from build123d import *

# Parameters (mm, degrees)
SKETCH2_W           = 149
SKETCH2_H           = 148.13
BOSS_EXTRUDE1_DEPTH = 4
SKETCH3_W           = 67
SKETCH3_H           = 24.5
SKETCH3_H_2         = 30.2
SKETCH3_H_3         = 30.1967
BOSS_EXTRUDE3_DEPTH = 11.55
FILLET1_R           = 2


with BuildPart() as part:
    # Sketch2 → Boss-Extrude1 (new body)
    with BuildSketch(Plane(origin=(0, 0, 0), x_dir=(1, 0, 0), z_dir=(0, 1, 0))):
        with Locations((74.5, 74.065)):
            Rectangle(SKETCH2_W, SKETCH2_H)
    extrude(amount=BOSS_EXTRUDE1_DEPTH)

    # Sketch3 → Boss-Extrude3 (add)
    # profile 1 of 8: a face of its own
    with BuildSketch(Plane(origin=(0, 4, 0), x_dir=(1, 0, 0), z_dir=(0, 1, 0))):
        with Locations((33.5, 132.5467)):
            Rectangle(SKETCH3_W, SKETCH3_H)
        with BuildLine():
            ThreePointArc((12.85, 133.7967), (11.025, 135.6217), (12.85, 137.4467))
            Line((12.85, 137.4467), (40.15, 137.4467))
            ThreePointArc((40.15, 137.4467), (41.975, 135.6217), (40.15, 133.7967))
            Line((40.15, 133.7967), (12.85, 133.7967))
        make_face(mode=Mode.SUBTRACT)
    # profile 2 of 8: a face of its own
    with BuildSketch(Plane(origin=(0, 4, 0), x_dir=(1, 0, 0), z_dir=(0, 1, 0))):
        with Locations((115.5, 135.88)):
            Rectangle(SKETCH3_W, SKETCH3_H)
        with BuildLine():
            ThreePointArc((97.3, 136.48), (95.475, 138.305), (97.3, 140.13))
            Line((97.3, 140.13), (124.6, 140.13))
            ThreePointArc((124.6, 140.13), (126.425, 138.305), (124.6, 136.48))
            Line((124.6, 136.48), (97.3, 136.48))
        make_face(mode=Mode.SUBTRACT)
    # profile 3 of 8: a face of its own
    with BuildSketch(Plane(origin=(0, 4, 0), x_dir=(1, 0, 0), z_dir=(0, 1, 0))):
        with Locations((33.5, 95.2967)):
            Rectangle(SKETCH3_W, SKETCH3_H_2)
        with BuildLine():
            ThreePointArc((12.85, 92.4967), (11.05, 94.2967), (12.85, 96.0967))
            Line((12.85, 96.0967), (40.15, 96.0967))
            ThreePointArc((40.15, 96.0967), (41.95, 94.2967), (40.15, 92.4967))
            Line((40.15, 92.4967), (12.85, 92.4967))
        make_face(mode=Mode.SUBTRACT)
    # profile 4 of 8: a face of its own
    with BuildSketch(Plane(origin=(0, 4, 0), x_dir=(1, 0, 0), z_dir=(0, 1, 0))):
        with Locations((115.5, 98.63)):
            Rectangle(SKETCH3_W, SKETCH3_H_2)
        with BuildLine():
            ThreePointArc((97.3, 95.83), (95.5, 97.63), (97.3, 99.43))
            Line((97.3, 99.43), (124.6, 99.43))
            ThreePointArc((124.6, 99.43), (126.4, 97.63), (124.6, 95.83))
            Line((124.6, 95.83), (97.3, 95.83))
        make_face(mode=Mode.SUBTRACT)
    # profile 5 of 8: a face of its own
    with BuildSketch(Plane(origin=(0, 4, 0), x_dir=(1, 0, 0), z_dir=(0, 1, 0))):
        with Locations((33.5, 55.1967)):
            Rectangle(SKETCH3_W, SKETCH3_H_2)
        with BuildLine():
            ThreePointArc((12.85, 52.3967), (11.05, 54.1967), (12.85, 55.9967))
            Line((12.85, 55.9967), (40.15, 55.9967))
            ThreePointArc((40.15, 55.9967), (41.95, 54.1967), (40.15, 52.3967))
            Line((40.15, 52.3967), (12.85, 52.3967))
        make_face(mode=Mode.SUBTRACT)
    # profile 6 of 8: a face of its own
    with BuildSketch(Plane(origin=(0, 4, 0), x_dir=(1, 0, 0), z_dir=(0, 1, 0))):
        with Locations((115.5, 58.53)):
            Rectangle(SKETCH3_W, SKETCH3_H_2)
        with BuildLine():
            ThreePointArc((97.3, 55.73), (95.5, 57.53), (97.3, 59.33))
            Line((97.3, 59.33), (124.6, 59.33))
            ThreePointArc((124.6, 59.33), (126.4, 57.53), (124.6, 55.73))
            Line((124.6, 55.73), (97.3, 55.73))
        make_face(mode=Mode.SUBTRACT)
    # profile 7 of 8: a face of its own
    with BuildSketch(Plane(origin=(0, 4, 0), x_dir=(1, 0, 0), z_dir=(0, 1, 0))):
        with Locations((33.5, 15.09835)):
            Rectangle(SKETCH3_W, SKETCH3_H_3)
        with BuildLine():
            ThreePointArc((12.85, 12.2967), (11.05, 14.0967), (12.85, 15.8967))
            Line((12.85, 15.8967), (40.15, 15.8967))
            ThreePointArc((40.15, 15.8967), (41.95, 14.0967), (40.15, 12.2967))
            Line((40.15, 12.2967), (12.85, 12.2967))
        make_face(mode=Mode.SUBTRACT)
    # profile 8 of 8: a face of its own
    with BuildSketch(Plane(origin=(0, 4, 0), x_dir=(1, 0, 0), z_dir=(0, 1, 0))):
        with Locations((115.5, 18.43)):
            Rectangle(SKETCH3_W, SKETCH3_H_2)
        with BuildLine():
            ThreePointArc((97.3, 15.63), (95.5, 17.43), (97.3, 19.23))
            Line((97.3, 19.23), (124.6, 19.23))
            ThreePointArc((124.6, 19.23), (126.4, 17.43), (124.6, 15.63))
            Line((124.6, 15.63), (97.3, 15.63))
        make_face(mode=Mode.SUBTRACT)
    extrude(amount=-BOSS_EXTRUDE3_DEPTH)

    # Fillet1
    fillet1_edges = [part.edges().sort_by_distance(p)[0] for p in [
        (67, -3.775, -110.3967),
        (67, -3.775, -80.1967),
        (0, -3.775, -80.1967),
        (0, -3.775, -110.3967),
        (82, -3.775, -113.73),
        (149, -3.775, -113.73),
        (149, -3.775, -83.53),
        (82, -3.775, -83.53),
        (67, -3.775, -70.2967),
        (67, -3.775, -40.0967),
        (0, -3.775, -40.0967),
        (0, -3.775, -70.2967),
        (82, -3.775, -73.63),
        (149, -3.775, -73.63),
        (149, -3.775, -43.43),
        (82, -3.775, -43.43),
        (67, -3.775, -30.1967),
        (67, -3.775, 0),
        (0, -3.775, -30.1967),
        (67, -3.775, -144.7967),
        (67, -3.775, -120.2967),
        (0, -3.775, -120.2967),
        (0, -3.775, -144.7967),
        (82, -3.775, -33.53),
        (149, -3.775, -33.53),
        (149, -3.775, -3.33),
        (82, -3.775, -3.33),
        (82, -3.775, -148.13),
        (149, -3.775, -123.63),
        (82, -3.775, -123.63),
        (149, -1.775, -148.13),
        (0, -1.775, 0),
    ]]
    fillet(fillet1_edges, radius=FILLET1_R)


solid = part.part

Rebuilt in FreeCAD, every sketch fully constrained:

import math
import FreeCAD as App
import Part
import Sketcher
from FreeCAD import Vector
Q = App.Units.Quantity


def edges_at(feature, points):
    """Names of the edges that pass closest to the given points."""
    edges = feature.Shape.Edges
    near = lambda p: min(range(len(edges)), key=lambda i: edges[i].distToShape(Part.Vertex(*p))[0])
    return sorted({f"Edge{near(p) + 1}" for p in points})

doc = App.newDocument("Part")
params = doc.addObject("Spreadsheet::Sheet", "Params")
for row, (alias, value) in enumerate([
    ("sketch1_width", "149 mm"),
    ("sketch1_height", "148.13 mm"),
    ("pad1_length", "4 mm"),
    ("sketch2_radius", "1.8 mm"),
    ("sketch2_width", "67 mm"),
    ("sketch2_width2", "27.3 mm"),
    ("sketch2_height", "24.5 mm"),
    ("sketch2_height2", "30.2 mm"),
    ("pad2_length", "11.55 mm"),
    ("fillet_radius", "2 mm"),
], start=1):
    params.set(f"A{row}", alias)
    params.set(f"B{row}", "=" + value)
    params.setAlias(f"B{row}", alias)

body = doc.addObject("PartDesign::Body", "Body")

# Sketch on XZ plane
sketch1 = body.newObject("Sketcher::SketchObject", "Sketch")
sketch1.AttachmentSupport = (doc.getObject("XZ_Plane"), [""])
sketch1.MapMode = "FlatFace"
sketch1.addGeometry([
    Part.LineSegment(Vector(0, -148.13, 0), Vector(0, 0, 0)),
    Part.LineSegment(Vector(0, 0, 0), Vector(149, 0, 0)),
    Part.LineSegment(Vector(149, 0, 0), Vector(149, -148.13, 0)),
    Part.LineSegment(Vector(149, -148.13, 0), Vector(0, -148.13, 0)),
], False)
sketch1.addConstraint([
    Sketcher.Constraint("Coincident", 0, 2, 1, 1),
    Sketcher.Constraint("Coincident", 1, 2, 2, 1),
    Sketcher.Constraint("Coincident", 2, 2, 3, 1),
    Sketcher.Constraint("Coincident", 3, 2, 0, 1),
    Sketcher.Constraint("Vertical", 0),
    Sketcher.Constraint("Horizontal", 1),
    Sketcher.Constraint("Vertical", 2),
    Sketcher.Constraint("Horizontal", 3),
    Sketcher.Constraint("Coincident", 0, 2, -1, 1),
    Sketcher.Constraint("DistanceX", 1, 1, 1, 2, Q("149 mm")),
    Sketcher.Constraint("DistanceY", 0, 1, 0, 2, Q("148.13 mm")),
])
sketch1.setExpression("Constraints[9]", "Params.sketch1_width")
sketch1.setExpression("Constraints[10]", "Params.sketch1_height")
pad1 = body.newObject("PartDesign::Pad", "Pad")
pad1.Profile = sketch1
pad1.setExpression("Length", "Params.pad1_length")
pad1.Reversed = True

# Sketch on XZ plane
sketch2 = body.newObject("Sketcher::SketchObject", "Sketch001")
sketch2.AttachmentSupport = (doc.getObject("XZ_Plane"), [""])
sketch2.MapMode = "FlatFace"
sketch2.AttachmentOffset = App.Placement(Vector(0, 0, -4), App.Rotation())
sketch2.addGeometry([
    Part.LineSegment(Vector(0, -144.7967, 0), Vector(0, -120.2967, 0)),  # 0
    Part.LineSegment(Vector(0, -120.2967, 0), Vector(67, -120.2967, 0)),  # 1
    Part.LineSegment(Vector(67, -120.2967, 0), Vector(67, -144.7967, 0)),  # 2
    Part.LineSegment(Vector(67, -144.7967, 0), Vector(0, -144.7967, 0)),  # 3
    Part.LineSegment(Vector(40.15, -133.7967, 0), Vector(12.85, -133.7967, 0)),  # 4
    Part.ArcOfCircle(Part.Circle(Vector(12.85, -135.6217, 0), Vector(0, 0, 1), 1.825), math.radians(90), math.radians(270)),  # 5
    Part.LineSegment(Vector(12.85, -137.4467, 0), Vector(40.15, -137.4467, 0)),  # 6
    Part.ArcOfCircle(Part.Circle(Vector(40.15, -135.6217, 0), Vector(0, 0, 1), 1.825), math.radians(-90), math.radians(90)),  # 7
    Part.LineSegment(Vector(82, -148.13, 0), Vector(82, -123.63, 0)),  # 8
    Part.LineSegment(Vector(82, -123.63, 0), Vector(149, -123.63, 0)),  # 9
    Part.LineSegment(Vector(149, -123.63, 0), Vector(149, -148.13, 0)),  # 10
    Part.LineSegment(Vector(149, -148.13, 0), Vector(82, -148.13, 0)),  # 11
    Part.LineSegment(Vector(124.6, -136.48, 0), Vector(97.3, -136.48, 0)),  # 12
    Part.ArcOfCircle(Part.Circle(Vector(97.3, -138.305, 0), Vector(0, 0, 1), 1.825), math.radians(90), math.radians(270)),  # 13
    Part.LineSegment(Vector(97.3, -140.13, 0), Vector(124.6, -140.13, 0)),  # 14
    Part.ArcOfCircle(Part.Circle(Vector(124.6, -138.305, 0), Vector(0, 0, 1), 1.825), math.radians(-90), math.radians(90)),  # 15
    Part.LineSegment(Vector(0, -110.3967, 0), Vector(0, -80.1967, 0)),  # 16
    Part.LineSegment(Vector(0, -80.1967, 0), Vector(67, -80.1967, 0)),  # 17
    Part.LineSegment(Vector(67, -80.1967, 0), Vector(67, -110.3967, 0)),  # 18
    Part.LineSegment(Vector(67, -110.3967, 0), Vector(0, -110.3967, 0)),  # 19
    Part.LineSegment(Vector(40.15, -92.4967, 0), Vector(12.85, -92.4967, 0)),  # 20
    Part.ArcOfCircle(Part.Circle(Vector(12.85, -94.2967, 0), Vector(0, 0, 1), 1.8), math.radians(90), math.radians(270)),  # 21
    Part.LineSegment(Vector(12.85, -96.0967, 0), Vector(40.15, -96.0967, 0)),  # 22
    Part.ArcOfCircle(Part.Circle(Vector(40.15, -94.2967, 0), Vector(0, 0, 1), 1.8), math.radians(-90), math.radians(90)),  # 23
    Part.LineSegment(Vector(82, -113.73, 0), Vector(82, -83.53, 0)),  # 24
    Part.LineSegment(Vector(82, -83.53, 0), Vector(149, -83.53, 0)),  # 25
    Part.LineSegment(Vector(149, -83.53, 0), Vector(149, -113.73, 0)),  # 26
    Part.LineSegment(Vector(149, -113.73, 0), Vector(82, -113.73, 0)),  # 27
    Part.LineSegment(Vector(124.6, -95.83, 0), Vector(97.3, -95.83, 0)),  # 28
    Part.ArcOfCircle(Part.Circle(Vector(97.3, -97.63, 0), Vector(0, 0, 1), 1.8), math.radians(90), math.radians(270)),  # 29
    Part.LineSegment(Vector(97.3, -99.43, 0), Vector(124.6, -99.43, 0)),  # 30
    Part.ArcOfCircle(Part.Circle(Vector(124.6, -97.63, 0), Vector(0, 0, 1), 1.8), math.radians(-90), math.radians(90)),  # 31
    Part.LineSegment(Vector(0, -70.2967, 0), Vector(0, -40.0967, 0)),  # 32
    Part.LineSegment(Vector(0, -40.0967, 0), Vector(67, -40.0967, 0)),  # 33
    Part.LineSegment(Vector(67, -40.0967, 0), Vector(67, -70.2967, 0)),  # 34
    Part.LineSegment(Vector(67, -70.2967, 0), Vector(0, -70.2967, 0)),  # 35
    Part.LineSegment(Vector(40.15, -52.3967, 0), Vector(12.85, -52.3967, 0)),  # 36
    Part.ArcOfCircle(Part.Circle(Vector(12.85, -54.1967, 0), Vector(0, 0, 1), 1.8), math.radians(90), math.radians(270)),  # 37
    Part.LineSegment(Vector(12.85, -55.9967, 0), Vector(40.15, -55.9967, 0)),  # 38
    Part.ArcOfCircle(Part.Circle(Vector(40.15, -54.1967, 0), Vector(0, 0, 1), 1.8), math.radians(-90), math.radians(90)),  # 39
    Part.LineSegment(Vector(82, -73.63, 0), Vector(82, -43.43, 0)),  # 40
    Part.LineSegment(Vector(82, -43.43, 0), Vector(149, -43.43, 0)),  # 41
    Part.LineSegment(Vector(149, -43.43, 0), Vector(149, -73.63, 0)),  # 42
    Part.LineSegment(Vector(149, -73.63, 0), Vector(82, -73.63, 0)),  # 43
    Part.LineSegment(Vector(124.6, -55.73, 0), Vector(97.3, -55.73, 0)),  # 44
    Part.ArcOfCircle(Part.Circle(Vector(97.3, -57.53, 0), Vector(0, 0, 1), 1.8), math.radians(90), math.radians(270)),  # 45
    Part.LineSegment(Vector(97.3, -59.33, 0), Vector(124.6, -59.33, 0)),  # 46
    Part.ArcOfCircle(Part.Circle(Vector(124.6, -57.53, 0), Vector(0, 0, 1), 1.8), math.radians(-90), math.radians(90)),  # 47
    Part.LineSegment(Vector(0, -30.1967, 0), Vector(0, 0, 0)),  # 48
    Part.LineSegment(Vector(0, 0, 0), Vector(67, 0, 0)),  # 49
    Part.LineSegment(Vector(67, 0, 0), Vector(67, -30.1967, 0)),  # 50
    Part.LineSegment(Vector(67, -30.1967, 0), Vector(0, -30.1967, 0)),  # 51
    Part.LineSegment(Vector(40.15, -12.2967, 0), Vector(12.85, -12.2967, 0)),  # 52
    Part.ArcOfCircle(Part.Circle(Vector(12.85, -14.0967, 0), Vector(0, 0, 1), 1.8), math.radians(90), math.radians(270)),  # 53
    Part.LineSegment(Vector(12.85, -15.8967, 0), Vector(40.15, -15.8967, 0)),  # 54
    Part.ArcOfCircle(Part.Circle(Vector(40.15, -14.0967, 0), Vector(0, 0, 1), 1.8), math.radians(-90), math.radians(90)),  # 55
    Part.LineSegment(Vector(82, -33.53, 0), Vector(82, -3.33, 0)),  # 56
    Part.LineSegment(Vector(82, -3.33, 0), Vector(149, -3.33, 0)),  # 57
    Part.LineSegment(Vector(149, -3.33, 0), Vector(149, -33.53, 0)),  # 58
    Part.LineSegment(Vector(149, -33.53, 0), Vector(82, -33.53, 0)),  # 59
    Part.LineSegment(Vector(124.6, -15.63, 0), Vector(97.3, -15.63, 0)),  # 60
    Part.ArcOfCircle(Part.Circle(Vector(97.3, -17.43, 0), Vector(0, 0, 1), 1.8), math.radians(90), math.radians(270)),  # 61
    Part.LineSegment(Vector(97.3, -19.23, 0), Vector(124.6, -19.23, 0)),  # 62
    Part.ArcOfCircle(Part.Circle(Vector(124.6, -17.43, 0), Vector(0, 0, 1), 1.8), math.radians(-90), math.radians(90)),  # 63
], False)
sketch2.addConstraint([
    Sketcher.Constraint("Coincident", 0, 2, 1, 1),
    Sketcher.Constraint("Coincident", 1, 2, 2, 1),
    Sketcher.Constraint("Coincident", 2, 2, 3, 1),
    Sketcher.Constraint("Coincident", 3, 2, 0, 1),
    Sketcher.Constraint("Tangent", 4, 2, 5, 1),
    Sketcher.Constraint("Tangent", 5, 2, 6, 1),
    Sketcher.Constraint("Tangent", 6, 2, 7, 1),
    Sketcher.Constraint("Tangent", 7, 2, 4, 1),
    Sketcher.Constraint("Coincident", 8, 2, 9, 1),
    Sketcher.Constraint("Coincident", 9, 2, 10, 1),
    Sketcher.Constraint("Coincident", 10, 2, 11, 1),
    Sketcher.Constraint("Coincident", 11, 2, 8, 1),
    Sketcher.Constraint("Tangent", 12, 2, 13, 1),
    Sketcher.Constraint("Tangent", 13, 2, 14, 1),
    Sketcher.Constraint("Tangent", 14, 2, 15, 1),
    Sketcher.Constraint("Tangent", 15, 2, 12, 1),
    Sketcher.Constraint("Coincident", 16, 2, 17, 1),
    Sketcher.Constraint("Coincident", 17, 2, 18, 1),
    Sketcher.Constraint("Coincident", 18, 2, 19, 1),
    Sketcher.Constraint("Coincident", 19, 2, 16, 1),
    Sketcher.Constraint("Tangent", 20, 2, 21, 1),
    Sketcher.Constraint("Tangent", 21, 2, 22, 1),
    Sketcher.Constraint("Tangent", 22, 2, 23, 1),
    Sketcher.Constraint("Tangent", 23, 2, 20, 1),
    Sketcher.Constraint("Coincident", 24, 2, 25, 1),
    Sketcher.Constraint("Coincident", 25, 2, 26, 1),
    Sketcher.Constraint("Coincident", 26, 2, 27, 1),
    Sketcher.Constraint("Coincident", 27, 2, 24, 1),
    Sketcher.Constraint("Tangent", 28, 2, 29, 1),
    Sketcher.Constraint("Tangent", 29, 2, 30, 1),
    Sketcher.Constraint("Tangent", 30, 2, 31, 1),
    Sketcher.Constraint("Tangent", 31, 2, 28, 1),
    Sketcher.Constraint("Coincident", 32, 2, 33, 1),
    Sketcher.Constraint("Coincident", 33, 2, 34, 1),
    Sketcher.Constraint("Coincident", 34, 2, 35, 1),
    Sketcher.Constraint("Coincident", 35, 2, 32, 1),
    Sketcher.Constraint("Tangent", 36, 2, 37, 1),
    Sketcher.Constraint("Tangent", 37, 2, 38, 1),
    Sketcher.Constraint("Tangent", 38, 2, 39, 1),
    Sketcher.Constraint("Tangent", 39, 2, 36, 1),
    Sketcher.Constraint("Coincident", 40, 2, 41, 1),
    Sketcher.Constraint("Coincident", 41, 2, 42, 1),
    Sketcher.Constraint("Coincident", 42, 2, 43, 1),
    Sketcher.Constraint("Coincident", 43, 2, 40, 1),
    Sketcher.Constraint("Tangent", 44, 2, 45, 1),
    Sketcher.Constraint("Tangent", 45, 2, 46, 1),
    Sketcher.Constraint("Tangent", 46, 2, 47, 1),
    Sketcher.Constraint("Tangent", 47, 2, 44, 1),
    Sketcher.Constraint("Coincident", 48, 2, 49, 1),
    Sketcher.Constraint("Coincident", 49, 2, 50, 1),
    Sketcher.Constraint("Coincident", 50, 2, 51, 1),
    Sketcher.Constraint("Coincident", 51, 2, 48, 1),
    Sketcher.Constraint("Tangent", 52, 2, 53, 1),
    Sketcher.Constraint("Tangent", 53, 2, 54, 1),
    Sketcher.Constraint("Tangent", 54, 2, 55, 1),
    Sketcher.Constraint("Tangent", 55, 2, 52, 1),
    Sketcher.Constraint("Coincident", 56, 2, 57, 1),
    Sketcher.Constraint("Coincident", 57, 2, 58, 1),
    Sketcher.Constraint("Coincident", 58, 2, 59, 1),
    Sketcher.Constraint("Coincident", 59, 2, 56, 1),
    Sketcher.Constraint("Tangent", 60, 2, 61, 1),
    Sketcher.Constraint("Tangent", 61, 2, 62, 1),
    Sketcher.Constraint("Tangent", 62, 2, 63, 1),
    Sketcher.Constraint("Tangent", 63, 2, 60, 1),
    Sketcher.Constraint("Vertical", 0),
    Sketcher.Constraint("Horizontal", 1),
    Sketcher.Constraint("Vertical", 2),
    Sketcher.Constraint("Horizontal", 3),
    Sketcher.Constraint("Horizontal", 4),
    Sketcher.Constraint("Horizontal", 6),
    Sketcher.Constraint("Vertical", 8),
    Sketcher.Constraint("Horizontal", 9),
    Sketcher.Constraint("Vertical", 10),
    Sketcher.Constraint("Horizontal", 11),
    Sketcher.Constraint("Horizontal", 12),
    Sketcher.Constraint("Horizontal", 14),
    Sketcher.Constraint("Vertical", 16),
    Sketcher.Constraint("Horizontal", 17),
    Sketcher.Constraint("Vertical", 18),
    Sketcher.Constraint("Horizontal", 19),
    Sketcher.Constraint("Horizontal", 20),
    Sketcher.Constraint("Horizontal", 22),
    Sketcher.Constraint("Vertical", 24),
    Sketcher.Constraint("Horizontal", 25),
    Sketcher.Constraint("Vertical", 26),
    Sketcher.Constraint("Horizontal", 27),
    Sketcher.Constraint("Horizontal", 28),
    Sketcher.Constraint("Horizontal", 30),
    Sketcher.Constraint("Vertical", 32),
    Sketcher.Constraint("Horizontal", 33),
    Sketcher.Constraint("Vertical", 34),
    Sketcher.Constraint("Horizontal", 35),
    Sketcher.Constraint("Horizontal", 36),
    Sketcher.Constraint("Horizontal", 38),
    Sketcher.Constraint("Vertical", 40),
    Sketcher.Constraint("Horizontal", 41),
    Sketcher.Constraint("Vertical", 42),
    Sketcher.Constraint("Horizontal", 43),
    Sketcher.Constraint("Horizontal", 44),
    Sketcher.Constraint("Horizontal", 46),
    Sketcher.Constraint("Vertical", 48),
    Sketcher.Constraint("Horizontal", 49),
    Sketcher.Constraint("Vertical", 50),
    Sketcher.Constraint("Horizontal", 51),
    Sketcher.Constraint("Horizontal", 52),
    Sketcher.Constraint("Horizontal", 54),
    Sketcher.Constraint("Vertical", 56),
    Sketcher.Constraint("Horizontal", 57),
    Sketcher.Constraint("Vertical", 58),
    Sketcher.Constraint("Horizontal", 59),
    Sketcher.Constraint("Horizontal", 60),
    Sketcher.Constraint("Horizontal", 62),
    Sketcher.Constraint("Coincident", 48, 2, -1, 1),
    Sketcher.Constraint("Equal", 7, 13),
    Sketcher.Constraint("Equal", 23, 29),
    Sketcher.Constraint("Equal", 31, 37),
    Sketcher.Constraint("Equal", 39, 45),
    Sketcher.Constraint("Equal", 47, 53),
    Sketcher.Constraint("Equal", 55, 61),
    Sketcher.Constraint("PointOnObject", 0, 2, -2),
    Sketcher.Constraint("PointOnObject", 16, 2, -2),
    Sketcher.Constraint("PointOnObject", 32, 2, -2),
    Sketcher.Constraint("Vertical", 5, 3, 21, 3),
    Sketcher.Constraint("Vertical", 7, 3, 23, 3),
    Sketcher.Constraint("Vertical", 13, 3, 29, 3),
    Sketcher.Constraint("Vertical", 15, 3, 31, 3),
    Sketcher.Constraint("Vertical", 21, 3, 37, 3),
    Sketcher.Constraint("Vertical", 23, 3, 39, 3),
    Sketcher.Constraint("Vertical", 29, 3, 45, 3),
    Sketcher.Constraint("Vertical", 31, 3, 47, 3),
    Sketcher.Constraint("Vertical", 37, 3, 53, 3),
    Sketcher.Constraint("Vertical", 39, 3, 55, 3),
    Sketcher.Constraint("Vertical", 45, 3, 61, 3),
    Sketcher.Constraint("Vertical", 47, 3, 63, 3),
    Sketcher.Constraint("Vertical", 2, 2, 17, 2),
    Sketcher.Constraint("Vertical", 11, 2, 24, 2),
    Sketcher.Constraint("Vertical", 10, 2, 25, 2),
    Sketcher.Constraint("Vertical", 18, 2, 33, 2),
    Sketcher.Constraint("Vertical", 27, 2, 40, 2),
    Sketcher.Constraint("Vertical", 26, 2, 41, 2),
    Sketcher.Constraint("Vertical", 34, 2, 49, 2),
    Sketcher.Constraint("Vertical", 43, 2, 56, 2),
    Sketcher.Constraint("Vertical", 42, 2, 57, 2),
    Sketcher.Constraint("Equal", 3, 9),
    Sketcher.Constraint("Equal", 6, 12),
    Sketcher.Constraint("Equal", 2, 8),
    Sketcher.Constraint("Equal", 18, 24),
    Sketcher.Constraint("Equal", 26, 32),
    Sketcher.Constraint("Equal", 34, 40),
    Sketcher.Constraint("Equal", 42, 56),
    Sketcher.Constraint("Radius", 21, Q("1.8 mm")),
    Sketcher.Constraint("DistanceX", 1, 1, 1, 2, Q("67 mm")),
    Sketcher.Constraint("DistanceX", 4, 2, 4, 1, Q("27.3 mm")),
    Sketcher.Constraint("DistanceY", 0, 1, 0, 2, Q("24.5 mm")),
    Sketcher.Constraint("DistanceY", 16, 1, 16, 2, Q("30.2 mm")),
    Sketcher.Constraint("DistanceX", -1, 1, 8, 2, Q("82 mm")),
    Sketcher.Constraint("Radius", 5, Q("1.825 mm")),
    Sketcher.Constraint("DistanceX", -1, 1, 13, 3, Q("97.3 mm")),
    Sketcher.Constraint("DistanceX", -1, 1, 5, 3, Q("12.85 mm")),
    Sketcher.Constraint("DistanceY", 29, 3, -1, 1, Q("97.63 mm")),
    Sketcher.Constraint("DistanceY", 45, 3, -1, 1, Q("57.53 mm")),
    Sketcher.Constraint("DistanceY", 61, 3, -1, 1, Q("17.43 mm")),
    Sketcher.Constraint("DistanceY", 8, 2, -1, 1, Q("123.63 mm")),
    Sketcher.Constraint("DistanceY", 12, 2, -1, 1, Q("136.48 mm")),
    Sketcher.Constraint("DistanceY", 24, 2, -1, 1, Q("83.53 mm")),
    Sketcher.Constraint("DistanceY", 40, 2, -1, 1, Q("43.43 mm")),
    Sketcher.Constraint("DistanceY", 56, 2, -1, 1, Q("3.33 mm")),
    Sketcher.Constraint("DistanceY", 48, 1, 48, 2, Q("30.1967 mm")),
    Sketcher.Constraint("DistanceY", 5, 3, -1, 1, Q("135.6217 mm")),
    Sketcher.Constraint("DistanceY", 21, 3, -1, 1, Q("94.2967 mm")),
    Sketcher.Constraint("DistanceY", 37, 3, -1, 1, Q("54.1967 mm")),
    Sketcher.Constraint("DistanceY", 53, 3, -1, 1, Q("14.0967 mm")),
    Sketcher.Constraint("DistanceY", 0, 2, -1, 1, Q("120.2967 mm")),
    Sketcher.Constraint("DistanceY", 16, 2, -1, 1, Q("80.1967 mm")),
    Sketcher.Constraint("DistanceY", 32, 2, -1, 1, Q("40.0967 mm")),
])
sketch2.setExpression("Constraints[150]", "Params.sketch2_radius")
sketch2.setExpression("Constraints[151]", "Params.sketch2_width")
sketch2.setExpression("Constraints[152]", "Params.sketch2_width2")
sketch2.setExpression("Constraints[153]", "Params.sketch2_height")
sketch2.setExpression("Constraints[154]", "Params.sketch2_height2")
pad2 = body.newObject("PartDesign::Pad", "Pad001")
pad2.Profile = sketch2
pad2.setExpression("Length", "Params.pad2_length")
doc.recompute()

fillet = body.newObject("PartDesign::Fillet", "Fillet")
fillet.Base = (pad2, edges_at(pad2, [
    (67, -3.775, -110.397),
    (67, -3.775, -80.197),
    (0, -3.775, -80.197),
    (0, -3.775, -110.397),
    (82, -3.775, -113.73),
    (149, -3.775, -113.73),
    (149, -3.775, -83.53),
    (82, -3.775, -83.53),
    (67, -3.775, -70.297),
    (67, -3.775, -40.097),
    (0, -3.775, -40.097),
    (0, -3.775, -70.297),
    (82, -3.775, -73.63),
    (149, -3.775, -73.63),
    (149, -3.775, -43.43),
    (82, -3.775, -43.43),
    (67, -3.775, -30.197),
    (67, -3.775, 0),
    (0, -3.775, -30.197),
    (67, -3.775, -144.797),
    (67, -3.775, -120.297),
    (0, -3.775, -120.297),
    (0, -3.775, -144.797),
    (82, -3.775, -33.53),
    (149, -3.775, -33.53),
    (149, -3.775, -3.33),
    (82, -3.775, -3.33),
    (82, -3.775, -148.13),
    (149, -3.775, -123.63),
    (82, -3.775, -123.63),
    (149, -1.775, -148.13),
    (0, -1.775, 0),
]))
fillet.setExpression("Radius", "Params.fillet_radius")

doc.recompute()
